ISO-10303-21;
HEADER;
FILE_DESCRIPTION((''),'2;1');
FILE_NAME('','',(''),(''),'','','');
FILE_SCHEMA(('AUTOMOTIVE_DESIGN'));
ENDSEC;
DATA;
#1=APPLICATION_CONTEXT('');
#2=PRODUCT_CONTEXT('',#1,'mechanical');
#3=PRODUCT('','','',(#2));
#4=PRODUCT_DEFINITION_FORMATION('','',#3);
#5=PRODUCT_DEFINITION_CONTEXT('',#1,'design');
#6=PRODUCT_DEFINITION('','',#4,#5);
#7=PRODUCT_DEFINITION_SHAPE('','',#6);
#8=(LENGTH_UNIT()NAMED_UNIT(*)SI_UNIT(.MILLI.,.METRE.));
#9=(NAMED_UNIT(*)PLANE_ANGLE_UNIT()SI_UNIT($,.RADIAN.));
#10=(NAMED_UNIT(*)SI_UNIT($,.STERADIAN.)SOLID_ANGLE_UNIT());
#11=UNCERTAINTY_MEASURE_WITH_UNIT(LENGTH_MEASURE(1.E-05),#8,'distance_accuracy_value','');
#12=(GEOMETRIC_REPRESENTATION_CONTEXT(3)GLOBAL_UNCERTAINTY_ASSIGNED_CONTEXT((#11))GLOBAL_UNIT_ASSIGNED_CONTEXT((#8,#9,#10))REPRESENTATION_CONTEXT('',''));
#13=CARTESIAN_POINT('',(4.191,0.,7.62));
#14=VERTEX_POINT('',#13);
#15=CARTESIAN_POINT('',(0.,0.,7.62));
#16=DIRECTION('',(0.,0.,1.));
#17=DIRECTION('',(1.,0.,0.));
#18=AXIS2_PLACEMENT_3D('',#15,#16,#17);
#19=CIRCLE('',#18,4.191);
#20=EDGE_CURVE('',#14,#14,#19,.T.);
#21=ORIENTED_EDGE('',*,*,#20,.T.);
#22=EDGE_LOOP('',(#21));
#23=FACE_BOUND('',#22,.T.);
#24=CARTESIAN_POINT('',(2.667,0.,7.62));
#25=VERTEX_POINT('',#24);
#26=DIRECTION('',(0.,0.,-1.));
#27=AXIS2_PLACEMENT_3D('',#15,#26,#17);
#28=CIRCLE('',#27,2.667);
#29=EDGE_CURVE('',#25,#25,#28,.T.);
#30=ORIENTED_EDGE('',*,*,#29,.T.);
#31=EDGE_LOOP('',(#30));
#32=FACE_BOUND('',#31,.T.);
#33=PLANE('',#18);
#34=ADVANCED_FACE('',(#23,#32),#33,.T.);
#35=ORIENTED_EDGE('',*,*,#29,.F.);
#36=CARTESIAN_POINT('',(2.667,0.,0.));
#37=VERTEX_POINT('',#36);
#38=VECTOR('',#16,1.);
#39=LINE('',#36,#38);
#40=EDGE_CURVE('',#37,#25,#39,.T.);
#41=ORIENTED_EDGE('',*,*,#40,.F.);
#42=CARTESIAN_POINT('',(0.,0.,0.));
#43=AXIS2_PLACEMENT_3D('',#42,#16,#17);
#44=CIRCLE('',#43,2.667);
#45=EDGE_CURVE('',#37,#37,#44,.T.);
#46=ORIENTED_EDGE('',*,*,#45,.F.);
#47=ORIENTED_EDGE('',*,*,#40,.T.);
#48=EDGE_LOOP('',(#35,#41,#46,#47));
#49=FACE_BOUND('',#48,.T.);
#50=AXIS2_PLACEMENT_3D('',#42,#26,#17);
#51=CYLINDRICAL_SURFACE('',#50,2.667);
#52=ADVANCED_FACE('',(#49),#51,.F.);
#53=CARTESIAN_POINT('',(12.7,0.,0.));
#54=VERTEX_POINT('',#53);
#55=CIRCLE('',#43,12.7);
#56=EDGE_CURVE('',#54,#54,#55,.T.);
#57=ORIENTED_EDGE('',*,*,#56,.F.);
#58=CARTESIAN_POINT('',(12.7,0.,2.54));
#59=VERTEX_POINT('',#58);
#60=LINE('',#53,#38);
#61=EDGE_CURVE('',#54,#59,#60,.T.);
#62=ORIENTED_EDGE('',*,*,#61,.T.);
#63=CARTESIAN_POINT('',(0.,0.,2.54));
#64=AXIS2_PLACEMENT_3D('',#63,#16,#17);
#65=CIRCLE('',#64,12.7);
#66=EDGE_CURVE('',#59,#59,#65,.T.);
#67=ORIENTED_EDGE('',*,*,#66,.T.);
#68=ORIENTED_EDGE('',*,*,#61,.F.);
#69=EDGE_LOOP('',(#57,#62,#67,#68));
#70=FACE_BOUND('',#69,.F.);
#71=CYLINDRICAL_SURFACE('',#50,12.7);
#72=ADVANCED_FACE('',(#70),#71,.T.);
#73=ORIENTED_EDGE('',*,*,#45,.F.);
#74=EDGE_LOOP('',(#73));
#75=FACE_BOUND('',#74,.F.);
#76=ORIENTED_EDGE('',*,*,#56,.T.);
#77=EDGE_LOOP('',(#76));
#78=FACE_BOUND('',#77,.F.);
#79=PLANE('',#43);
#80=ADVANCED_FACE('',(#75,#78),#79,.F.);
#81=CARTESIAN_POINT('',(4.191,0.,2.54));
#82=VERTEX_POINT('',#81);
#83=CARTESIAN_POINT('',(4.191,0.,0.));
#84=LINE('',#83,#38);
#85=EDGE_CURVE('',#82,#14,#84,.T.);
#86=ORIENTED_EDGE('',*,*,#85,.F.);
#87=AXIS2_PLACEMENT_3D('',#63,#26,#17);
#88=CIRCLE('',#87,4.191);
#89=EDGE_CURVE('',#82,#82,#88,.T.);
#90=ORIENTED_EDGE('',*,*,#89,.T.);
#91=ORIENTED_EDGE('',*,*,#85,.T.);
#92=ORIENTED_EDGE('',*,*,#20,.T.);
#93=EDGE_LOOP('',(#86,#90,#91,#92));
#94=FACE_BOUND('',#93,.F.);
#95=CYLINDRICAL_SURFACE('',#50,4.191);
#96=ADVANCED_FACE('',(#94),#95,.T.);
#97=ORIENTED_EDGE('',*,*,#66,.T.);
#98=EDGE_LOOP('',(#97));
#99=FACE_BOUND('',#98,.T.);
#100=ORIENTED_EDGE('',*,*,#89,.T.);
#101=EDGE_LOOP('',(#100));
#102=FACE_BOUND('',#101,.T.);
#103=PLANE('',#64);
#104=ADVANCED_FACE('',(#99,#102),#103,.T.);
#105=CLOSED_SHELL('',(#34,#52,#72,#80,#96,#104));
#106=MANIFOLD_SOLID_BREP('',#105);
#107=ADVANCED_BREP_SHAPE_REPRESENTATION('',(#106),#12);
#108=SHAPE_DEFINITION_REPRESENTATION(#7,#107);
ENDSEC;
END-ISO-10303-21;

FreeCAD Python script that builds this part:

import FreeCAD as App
import Part
import Sketcher

V = App.Vector
Q = App.Units.Quantity

doc = App.newDocument("Part")
body = doc.addObject("PartDesign::Body", "Body")

# Sketch on XY plane
sketch1 = body.newObject("Sketcher::SketchObject", "Sketch")
sketch1.AttachmentSupport = (doc.getObject("XY_Plane"), [""])
sketch1.MapMode = "FlatFace"
sketch1.addGeometry(Part.Circle(V(0, 0, 0), V(0, 0, 1), 12.7), False)
sketch1.addConstraint([
    Sketcher.Constraint("Coincident", 0, 3, -1, 1),
    Sketcher.Constraint("Diameter", 0, Q("1 in")),
])
pad1 = body.newObject("PartDesign::Pad", "Pad")
pad1.Profile = sketch1
pad1.Length = Q("0.1 in")

# Sketch on XY plane
sketch2 = body.newObject("Sketcher::SketchObject", "Sketch001")
sketch2.AttachmentSupport = (doc.getObject("XY_Plane"), [""])
sketch2.MapMode = "FlatFace"
sketch2.addGeometry(Part.Circle(V(0, 0, 0), V(0, 0, 1), 4.191), False)
sketch2.addConstraint([
    Sketcher.Constraint("Coincident", 0, 3, -1, 1),
    Sketcher.Constraint("Diameter", 0, Q("0.33 in")),
])
pad2 = body.newObject("PartDesign::Pad", "Pad001")
pad2.Profile = sketch2
pad2.Length = Q("0.3 in")

# Sketch on XY plane
sketch3 = body.newObject("Sketcher::SketchObject", "Sketch002")
sketch3.AttachmentSupport = (doc.getObject("XY_Plane"), [""])
sketch3.MapMode = "FlatFace"
sketch3.addGeometry(Part.Circle(V(0, 0, 0), V(0, 0, 1), 2.667), False)
sketch3.addConstraint([
    Sketcher.Constraint("Coincident", 0, 3, -1, 1),
    Sketcher.Constraint("Diameter", 0, Q("0.21 in")),
])
pocket1 = body.newObject("PartDesign::Pocket", "Pocket")
pocket1.Profile = sketch3
pocket1.Type = "ThroughAll"
pocket1.Reversed = True

doc.recompute()
